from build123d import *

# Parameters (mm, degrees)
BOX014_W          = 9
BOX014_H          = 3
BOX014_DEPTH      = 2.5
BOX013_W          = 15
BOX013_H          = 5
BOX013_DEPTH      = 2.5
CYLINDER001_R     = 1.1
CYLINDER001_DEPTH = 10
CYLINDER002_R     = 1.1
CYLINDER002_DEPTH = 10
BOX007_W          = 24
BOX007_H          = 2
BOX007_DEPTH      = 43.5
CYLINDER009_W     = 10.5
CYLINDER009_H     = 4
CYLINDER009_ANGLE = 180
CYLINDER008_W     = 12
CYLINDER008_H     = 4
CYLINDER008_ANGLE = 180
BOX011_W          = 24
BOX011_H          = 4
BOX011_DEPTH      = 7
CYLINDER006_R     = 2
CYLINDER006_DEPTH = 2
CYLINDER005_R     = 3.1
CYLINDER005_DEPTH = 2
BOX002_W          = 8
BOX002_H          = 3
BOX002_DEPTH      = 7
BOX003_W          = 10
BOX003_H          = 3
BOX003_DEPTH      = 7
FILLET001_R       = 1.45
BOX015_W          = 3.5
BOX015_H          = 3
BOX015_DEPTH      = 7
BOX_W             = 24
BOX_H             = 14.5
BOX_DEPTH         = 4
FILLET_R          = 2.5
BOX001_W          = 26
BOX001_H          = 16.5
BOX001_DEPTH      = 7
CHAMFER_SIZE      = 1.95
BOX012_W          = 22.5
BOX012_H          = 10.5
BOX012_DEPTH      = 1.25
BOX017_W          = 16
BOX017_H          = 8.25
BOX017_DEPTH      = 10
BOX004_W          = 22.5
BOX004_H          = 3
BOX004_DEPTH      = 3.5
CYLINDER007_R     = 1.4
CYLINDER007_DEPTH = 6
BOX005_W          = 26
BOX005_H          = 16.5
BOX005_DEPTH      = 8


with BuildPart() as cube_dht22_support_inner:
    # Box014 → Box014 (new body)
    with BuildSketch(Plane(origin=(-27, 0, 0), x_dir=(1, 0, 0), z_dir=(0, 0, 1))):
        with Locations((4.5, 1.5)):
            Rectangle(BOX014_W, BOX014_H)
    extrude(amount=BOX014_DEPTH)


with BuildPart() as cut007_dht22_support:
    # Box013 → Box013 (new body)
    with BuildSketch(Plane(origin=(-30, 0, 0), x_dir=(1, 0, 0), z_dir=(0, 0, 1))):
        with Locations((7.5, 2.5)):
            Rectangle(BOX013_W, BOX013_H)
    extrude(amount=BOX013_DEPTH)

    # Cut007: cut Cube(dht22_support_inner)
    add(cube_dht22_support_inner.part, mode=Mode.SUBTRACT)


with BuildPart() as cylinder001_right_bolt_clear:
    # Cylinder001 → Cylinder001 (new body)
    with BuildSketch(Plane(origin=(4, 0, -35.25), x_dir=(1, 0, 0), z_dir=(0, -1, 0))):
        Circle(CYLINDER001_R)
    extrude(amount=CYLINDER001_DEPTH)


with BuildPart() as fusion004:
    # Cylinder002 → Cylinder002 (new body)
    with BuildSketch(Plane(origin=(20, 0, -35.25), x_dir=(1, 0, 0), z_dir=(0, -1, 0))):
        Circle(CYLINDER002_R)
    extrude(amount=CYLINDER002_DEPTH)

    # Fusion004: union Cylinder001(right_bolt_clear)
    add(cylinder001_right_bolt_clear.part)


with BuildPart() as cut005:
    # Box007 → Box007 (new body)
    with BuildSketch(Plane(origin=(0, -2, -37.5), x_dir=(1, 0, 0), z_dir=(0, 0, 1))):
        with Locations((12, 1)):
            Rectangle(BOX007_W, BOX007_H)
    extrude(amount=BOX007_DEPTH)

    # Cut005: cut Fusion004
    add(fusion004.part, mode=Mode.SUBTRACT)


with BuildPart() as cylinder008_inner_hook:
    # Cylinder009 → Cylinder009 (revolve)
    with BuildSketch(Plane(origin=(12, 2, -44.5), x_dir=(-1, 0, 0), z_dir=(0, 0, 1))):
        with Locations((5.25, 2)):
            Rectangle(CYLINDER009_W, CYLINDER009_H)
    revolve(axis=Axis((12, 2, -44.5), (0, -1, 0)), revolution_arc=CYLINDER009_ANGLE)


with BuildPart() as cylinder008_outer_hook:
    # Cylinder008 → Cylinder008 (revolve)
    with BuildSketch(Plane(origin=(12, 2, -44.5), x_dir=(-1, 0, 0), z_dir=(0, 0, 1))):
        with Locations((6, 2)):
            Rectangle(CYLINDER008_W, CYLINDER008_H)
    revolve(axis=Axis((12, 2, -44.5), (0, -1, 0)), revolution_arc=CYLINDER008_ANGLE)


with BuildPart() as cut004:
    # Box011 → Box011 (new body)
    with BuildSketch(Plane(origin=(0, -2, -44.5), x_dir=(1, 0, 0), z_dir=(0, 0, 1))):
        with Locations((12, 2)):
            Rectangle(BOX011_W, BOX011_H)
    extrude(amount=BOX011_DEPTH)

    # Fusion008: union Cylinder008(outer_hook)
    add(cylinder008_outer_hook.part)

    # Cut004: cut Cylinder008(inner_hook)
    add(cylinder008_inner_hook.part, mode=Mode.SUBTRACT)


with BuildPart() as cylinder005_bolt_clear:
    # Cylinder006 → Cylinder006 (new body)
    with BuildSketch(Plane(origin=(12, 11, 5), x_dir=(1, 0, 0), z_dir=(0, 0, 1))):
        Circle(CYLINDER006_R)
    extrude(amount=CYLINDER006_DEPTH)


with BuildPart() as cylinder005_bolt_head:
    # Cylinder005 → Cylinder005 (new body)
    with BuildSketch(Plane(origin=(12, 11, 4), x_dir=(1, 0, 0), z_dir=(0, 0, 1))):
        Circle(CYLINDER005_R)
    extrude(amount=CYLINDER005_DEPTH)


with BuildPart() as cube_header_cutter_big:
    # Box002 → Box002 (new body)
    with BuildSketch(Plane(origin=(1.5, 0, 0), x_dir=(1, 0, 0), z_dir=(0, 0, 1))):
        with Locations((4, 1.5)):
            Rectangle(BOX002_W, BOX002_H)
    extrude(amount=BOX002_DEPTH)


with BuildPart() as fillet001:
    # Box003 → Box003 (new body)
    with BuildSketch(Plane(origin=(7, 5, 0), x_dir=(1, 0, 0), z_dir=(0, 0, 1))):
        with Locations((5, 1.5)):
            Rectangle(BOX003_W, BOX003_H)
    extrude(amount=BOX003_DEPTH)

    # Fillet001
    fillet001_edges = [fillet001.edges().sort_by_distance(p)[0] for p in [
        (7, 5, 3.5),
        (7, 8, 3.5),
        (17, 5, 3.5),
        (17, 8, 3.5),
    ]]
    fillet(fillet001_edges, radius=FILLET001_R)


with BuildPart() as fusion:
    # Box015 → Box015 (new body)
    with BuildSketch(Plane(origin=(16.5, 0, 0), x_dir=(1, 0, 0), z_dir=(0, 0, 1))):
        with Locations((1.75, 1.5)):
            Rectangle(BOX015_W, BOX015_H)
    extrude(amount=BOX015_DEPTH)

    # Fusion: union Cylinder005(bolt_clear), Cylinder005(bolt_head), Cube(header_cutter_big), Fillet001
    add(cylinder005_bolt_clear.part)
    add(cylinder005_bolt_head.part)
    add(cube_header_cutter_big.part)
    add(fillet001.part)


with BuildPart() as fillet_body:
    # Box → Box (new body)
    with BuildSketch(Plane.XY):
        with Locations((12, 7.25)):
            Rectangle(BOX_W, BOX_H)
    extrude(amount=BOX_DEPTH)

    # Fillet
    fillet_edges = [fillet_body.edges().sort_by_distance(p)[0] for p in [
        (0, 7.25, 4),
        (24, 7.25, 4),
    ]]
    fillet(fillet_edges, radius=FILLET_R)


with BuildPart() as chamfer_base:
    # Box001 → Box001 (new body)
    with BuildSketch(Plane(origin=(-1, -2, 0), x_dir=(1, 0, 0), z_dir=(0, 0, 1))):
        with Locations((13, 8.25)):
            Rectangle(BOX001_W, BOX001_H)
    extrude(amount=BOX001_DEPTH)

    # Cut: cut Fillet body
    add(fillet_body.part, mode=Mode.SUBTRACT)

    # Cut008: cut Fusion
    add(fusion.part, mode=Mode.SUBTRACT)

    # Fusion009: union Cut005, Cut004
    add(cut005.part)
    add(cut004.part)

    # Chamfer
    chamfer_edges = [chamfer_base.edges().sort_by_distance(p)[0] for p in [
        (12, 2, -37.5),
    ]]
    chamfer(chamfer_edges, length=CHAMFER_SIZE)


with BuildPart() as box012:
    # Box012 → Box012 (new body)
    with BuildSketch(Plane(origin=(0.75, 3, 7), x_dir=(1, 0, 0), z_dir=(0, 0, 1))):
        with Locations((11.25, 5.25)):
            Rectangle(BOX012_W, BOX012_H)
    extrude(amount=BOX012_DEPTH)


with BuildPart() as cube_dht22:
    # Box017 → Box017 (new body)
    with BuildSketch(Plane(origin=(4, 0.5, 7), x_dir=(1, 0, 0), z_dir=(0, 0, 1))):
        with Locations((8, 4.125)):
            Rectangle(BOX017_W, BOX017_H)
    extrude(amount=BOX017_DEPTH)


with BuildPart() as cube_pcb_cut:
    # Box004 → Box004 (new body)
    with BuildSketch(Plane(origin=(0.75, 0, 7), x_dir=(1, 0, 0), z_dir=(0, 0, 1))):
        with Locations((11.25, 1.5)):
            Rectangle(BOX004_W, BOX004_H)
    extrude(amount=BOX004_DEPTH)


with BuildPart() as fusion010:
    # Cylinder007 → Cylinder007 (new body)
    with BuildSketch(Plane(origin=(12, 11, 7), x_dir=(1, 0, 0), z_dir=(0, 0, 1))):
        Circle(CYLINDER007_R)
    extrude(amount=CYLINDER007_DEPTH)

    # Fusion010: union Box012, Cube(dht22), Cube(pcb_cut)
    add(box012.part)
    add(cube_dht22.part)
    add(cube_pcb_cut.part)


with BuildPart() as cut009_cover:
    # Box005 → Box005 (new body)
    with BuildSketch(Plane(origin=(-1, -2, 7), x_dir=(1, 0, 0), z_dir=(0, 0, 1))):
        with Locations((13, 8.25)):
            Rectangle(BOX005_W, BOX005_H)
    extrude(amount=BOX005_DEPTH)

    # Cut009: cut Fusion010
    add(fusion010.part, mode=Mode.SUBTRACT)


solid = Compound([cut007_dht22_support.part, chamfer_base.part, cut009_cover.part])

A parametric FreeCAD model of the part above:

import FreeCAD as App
import Part
import Sketcher
from FreeCAD import Vector


def edges_at(feature, points):
    """Names of the edges that pass closest to the given points."""
    edges = feature.Shape.Edges
    near = lambda p: min(range(len(edges)), key=lambda i: edges[i].distToShape(Part.Vertex(*p))[0])
    return sorted({f"Edge{near(p) + 1}" for p in points})


def add_polygon(sketch, points):
    """Adds a closed chain of lines whose ends are joined by coincident constraints."""
    first, n = sketch.GeometryCount, len(points)
    for a, b in zip(points, points[1:] + points[:1]):
        sketch.addGeometry(Part.LineSegment(App.Vector(*a, 0), App.Vector(*b, 0)), False)
    for i in range(n):
        sketch.addConstraint(Sketcher.Constraint("Coincident", first + i, 2, first + (i + 1) % n, 1))

doc = App.newDocument("Part")
body = doc.addObject("PartDesign::Body", "Body")

# Sketch on XY plane
sketch1 = doc.addObject("Sketcher::SketchObject", "Sketch")
body.addObject(sketch1)
sketch1.AttachmentSupport = (doc.XY_Plane, [""])
sketch1.MapMode = "FlatFace"
add_polygon(sketch1, [(-27, 3), (-27, 0), (-18, 0), (-18, 3)])  # lines 0-3
sketch1.addConstraint([
    Sketcher.Constraint("Vertical", 0),
    Sketcher.Constraint("Horizontal", 1),
    Sketcher.Constraint("Vertical", 2),
    Sketcher.Constraint("Horizontal", 3),
    Sketcher.Constraint("PointOnObject", 0, 2, -1),
    Sketcher.Constraint("DistanceX", 1, 1, 1, 2, 9.0),
    Sketcher.Constraint("DistanceY", 0, 2, 0, 1, 3.0),
    Sketcher.Constraint("DistanceX", 0, 2, -1, 1, 27.0),
])
pad1 = doc.addObject("PartDesign::Pad", "Pad")
body.addObject(pad1)
pad1.Profile = sketch1
pad1.Length = 2.5
body2 = doc.addObject("PartDesign::Body", "Body001")

# Sketch on XY plane
sketch2 = doc.addObject("Sketcher::SketchObject", "Sketch001")
body2.addObject(sketch2)
sketch2.AttachmentSupport = (doc.getObject("XY_Plane001"), [""])
sketch2.MapMode = "FlatFace"
add_polygon(sketch2, [(-30, 5), (-30, 0), (-15, 0), (-15, 5)])  # lines 0-3
sketch2.addConstraint([
    Sketcher.Constraint("Vertical", 0),
    Sketcher.Constraint("Horizontal", 1),
    Sketcher.Constraint("Vertical", 2),
    Sketcher.Constraint("Horizontal", 3),
    Sketcher.Constraint("PointOnObject", 0, 2, -1),
    Sketcher.Constraint("DistanceX", 1, 1, 1, 2, 15.0),
    Sketcher.Constraint("DistanceY", 0, 2, 0, 1, 5.0),
    Sketcher.Constraint("DistanceX", 0, 2, -1, 1, 30.0),
])
pad2 = doc.addObject("PartDesign::Pad", "Pad001")
body2.addObject(pad2)
pad2.Profile = sketch2
pad2.Length = 2.5
doc.recompute()

boolean = doc.addObject("PartDesign::Boolean", "Boolean")
body2.addObject(boolean)
boolean.Type = "Cut"
boolean.addObjects([body])
body3 = doc.addObject("PartDesign::Body", "Body002")

# Sketch on XZ plane
sketch3 = doc.addObject("Sketcher::SketchObject", "Sketch002")
body3.addObject(sketch3)
sketch3.AttachmentSupport = (doc.getObject("XZ_Plane002"), [""])
sketch3.MapMode = "FlatFace"
sketch3.addGeometry(Part.Circle(Vector(4, -35.2, 0), Vector(0, 0, 1), 1.1), False)
sketch3.addConstraint([
    Sketcher.Constraint("Diameter", 0, 2.2),
    Sketcher.Constraint("DistanceX", -1, 1, 0, 3, 4.0),
    Sketcher.Constraint("DistanceY", 0, 3, -1, 1, 35.25),
])
pad3 = doc.addObject("PartDesign::Pad", "Pad002")
body3.addObject(pad3)
pad3.Profile = sketch3
pad3.Length = 10
body4 = doc.addObject("PartDesign::Body", "Body003")
body4.AllowCompound = True

# Sketch on XZ plane
sketch4 = doc.addObject("Sketcher::SketchObject", "Sketch003")
body4.addObject(sketch4)
sketch4.AttachmentSupport = (doc.getObject("XZ_Plane003"), [""])
sketch4.MapMode = "FlatFace"
sketch4.addGeometry(Part.Circle(Vector(20, -35.2, 0), Vector(0, 0, 1), 1.1), False)
sketch4.addConstraint([
    Sketcher.Constraint("Diameter", 0, 2.2),
    Sketcher.Constraint("DistanceX", -1, 1, 0, 3, 20.0),
    Sketcher.Constraint("DistanceY", 0, 3, -1, 1, 35.25),
])
pad4 = doc.addObject("PartDesign::Pad", "Pad003")
body4.addObject(pad4)
pad4.Profile = sketch4
pad4.Length = 10
doc.recompute()

boolean2 = doc.addObject("PartDesign::Boolean", "Boolean001")
body4.addObject(boolean2)
boolean2.Type = "Fuse"
boolean2.addObjects([body3])
body5 = doc.addObject("PartDesign::Body", "Body004")

# Sketch on XY plane
sketch5 = doc.addObject("Sketcher::SketchObject", "Sketch004")
body5.addObject(sketch5)
sketch5.AttachmentSupport = (doc.getObject("XY_Plane004"), [""])
sketch5.MapMode = "FlatFace"
sketch5.AttachmentOffset = App.Placement(Vector(0, 0, -37.5), App.Rotation())
add_polygon(sketch5, [(0, 0), (0, -2), (24, -2), (24, 0)])  # lines 0-3
sketch5.addConstraint([
    Sketcher.Constraint("Vertical", 0),
    Sketcher.Constraint("Horizontal", 1),
    Sketcher.Constraint("Vertical", 2),
    Sketcher.Constraint("Horizontal", 3),
    Sketcher.Constraint("Coincident", 3, 2, -1, 1),
    Sketcher.Constraint("DistanceX", 1, 1, 1, 2, 24.0),
    Sketcher.Constraint("DistanceY", 0, 2, 0, 1, 2.0),
])
pad5 = doc.addObject("PartDesign::Pad", "Pad004")
body5.addObject(pad5)
pad5.Profile = sketch5
pad5.Length = 43.5
doc.recompute()

boolean3 = doc.addObject("PartDesign::Boolean", "Boolean002")
body5.addObject(boolean3)
boolean3.Type = "Cut"
boolean3.addObjects([body4])
body6 = doc.addObject("PartDesign::Body", "Body005")

# Sketch on XY plane
sketch6 = doc.addObject("Sketcher::SketchObject", "Sketch005")
body6.addObject(sketch6)
sketch6.AttachmentSupport = (doc.getObject("XY_Plane005"), [""])
sketch6.MapMode = "FlatFace"
sketch6.AttachmentOffset = App.Placement(Vector(0, 0, -44.5), App.Rotation())
add_polygon(sketch6, [(12, -2), (12, 2), (1.5, 2), (1.5, -2)])  # lines 0-3
sketch6.addGeometry(Part.LineSegment(Vector(12, 2, 0), Vector(12, -2, 0)), True)  # axis
sketch6.addConstraint([
    Sketcher.Constraint("Vertical", 0),
    Sketcher.Constraint("Horizontal", 1),
    Sketcher.Constraint("Vertical", 2),
    Sketcher.Constraint("Horizontal", 3),
    Sketcher.Constraint("Vertical", 4),
    Sketcher.Constraint("Coincident", 4, 1, 0, 2),
    Sketcher.Constraint("Horizontal", 2, 2, 4, 2),
    Sketcher.Constraint("DistanceY", 0, 1, 0, 2, 4.0),
    Sketcher.Constraint("DistanceX", 1, 2, 1, 1, 10.5),
    Sketcher.Constraint("DistanceX", -1, 1, 0, 2, 12.0),
    Sketcher.Constraint("DistanceY", -1, 1, 0, 2, 2.0),
])
revolution = doc.addObject("PartDesign::Revolution", "Revolution")
body6.addObject(revolution)
revolution.Profile = sketch6
revolution.ReferenceAxis = (sketch6, ["Axis0"])
revolution.Angle = 180
body7 = doc.addObject("PartDesign::Body", "Body006")

# Sketch on XY plane
sketch7 = doc.addObject("Sketcher::SketchObject", "Sketch006")
body7.addObject(sketch7)
sketch7.AttachmentSupport = (doc.getObject("XY_Plane006"), [""])
sketch7.MapMode = "FlatFace"
sketch7.AttachmentOffset = App.Placement(Vector(0, 0, -44.5), App.Rotation())
add_polygon(sketch7, [(12, -2), (12, 2), (0, 2), (0, -2)])  # lines 0-3
sketch7.addGeometry(Part.LineSegment(Vector(12, 2, 0), Vector(12, -2, 0)), True)  # axis
sketch7.addConstraint([
    Sketcher.Constraint("Vertical", 0),
    Sketcher.Constraint("Horizontal", 1),
    Sketcher.Constraint("Vertical", 2),
    Sketcher.Constraint("Horizontal", 3),
    Sketcher.Constraint("Vertical", 4),
    Sketcher.Constraint("Coincident", 4, 1, 0, 2),
    Sketcher.Constraint("Symmetric", 1, 2, 2, 2, -1, 1),
    Sketcher.Constraint("Horizontal", 2, 2, 4, 2),
    Sketcher.Constraint("DistanceX", 1, 2, 1, 1, 12.0),
    Sketcher.Constraint("DistanceY", 0, 1, 0, 2, 4.0),
])
revolution2 = doc.addObject("PartDesign::Revolution", "Revolution001")
body7.addObject(revolution2)
revolution2.Profile = sketch7
revolution2.ReferenceAxis = (sketch7, ["Axis0"])
revolution2.Angle = 180
body8 = doc.addObject("PartDesign::Body", "Body007")

# Sketch on XY plane
sketch8 = doc.addObject("Sketcher::SketchObject", "Sketch007")
body8.addObject(sketch8)
sketch8.AttachmentSupport = (doc.getObject("XY_Plane007"), [""])
sketch8.MapMode = "FlatFace"
sketch8.AttachmentOffset = App.Placement(Vector(0, 0, -44.5), App.Rotation())
add_polygon(sketch8, [(0, 2), (0, -2), (24, -2), (24, 2)])  # lines 0-3
sketch8.addConstraint([
    Sketcher.Constraint("Vertical", 0),
    Sketcher.Constraint("Horizontal", 1),
    Sketcher.Constraint("Vertical", 2),
    Sketcher.Constraint("Horizontal", 3),
    Sketcher.Constraint("Symmetric", 0, 2, 3, 2, -1, 1),
    Sketcher.Constraint("DistanceX", 1, 1, 1, 2, 24.0),
    Sketcher.Constraint("DistanceY", 0, 2, 0, 1, 4.0),
])
pad6 = doc.addObject("PartDesign::Pad", "Pad005")
body8.addObject(pad6)
pad6.Profile = sketch8
pad6.Length = 7
doc.recompute()

boolean4 = doc.addObject("PartDesign::Boolean", "Boolean003")
body8.addObject(boolean4)
boolean4.Type = "Fuse"
boolean4.addObjects([body7])
doc.recompute()

boolean5 = doc.addObject("PartDesign::Boolean", "Boolean004")
body8.addObject(boolean5)
boolean5.Type = "Cut"
boolean5.addObjects([body6])
body9 = doc.addObject("PartDesign::Body", "Body008")

# Sketch on XY plane
sketch9 = doc.addObject("Sketcher::SketchObject", "Sketch008")
body9.addObject(sketch9)
sketch9.AttachmentSupport = (doc.getObject("XY_Plane008"), [""])
sketch9.MapMode = "FlatFace"
sketch9.AttachmentOffset = App.Placement(Vector(0, 0, 5), App.Rotation())
sketch9.addGeometry(Part.Circle(Vector(12, 11, 0), Vector(0, 0, 1), 2), False)
sketch9.addConstraint([
    Sketcher.Constraint("Diameter", 0, 4.0),
    Sketcher.Constraint("DistanceX", -1, 1, 0, 3, 12.0),
    Sketcher.Constraint("DistanceY", -1, 1, 0, 3, 11.0),
])
pad7 = doc.addObject("PartDesign::Pad", "Pad006")
body9.addObject(pad7)
pad7.Profile = sketch9
pad7.Length = 2
body10 = doc.addObject("PartDesign::Body", "Body009")

# Sketch on XY plane
sketch10 = doc.addObject("Sketcher::SketchObject", "Sketch009")
body10.addObject(sketch10)
sketch10.AttachmentSupport = (doc.getObject("XY_Plane009"), [""])
sketch10.MapMode = "FlatFace"
sketch10.AttachmentOffset = App.Placement(Vector(0, 0, 4), App.Rotation())
sketch10.addGeometry(Part.Circle(Vector(12, 11, 0), Vector(0, 0, 1), 3.1), False)
sketch10.addConstraint([
    Sketcher.Constraint("Diameter", 0, 6.2),
    Sketcher.Constraint("DistanceX", -1, 1, 0, 3, 12.0),
    Sketcher.Constraint("DistanceY", -1, 1, 0, 3, 11.0),
])
pad8 = doc.addObject("PartDesign::Pad", "Pad007")
body10.addObject(pad8)
pad8.Profile = sketch10
pad8.Length = 2
body11 = doc.addObject("PartDesign::Body", "Body010")

# Sketch on XY plane
sketch11 = doc.addObject("Sketcher::SketchObject", "Sketch010")
body11.addObject(sketch11)
sketch11.AttachmentSupport = (doc.getObject("XY_Plane010"), [""])
sketch11.MapMode = "FlatFace"
add_polygon(sketch11, [(1.5, 3), (1.5, 0), (9.5, 0), (9.5, 3)])  # lines 0-3
sketch11.addConstraint([
    Sketcher.Constraint("Vertical", 0),
    Sketcher.Constraint("Horizontal", 1),
    Sketcher.Constraint("Vertical", 2),
    Sketcher.Constraint("Horizontal", 3),
    Sketcher.Constraint("PointOnObject", 0, 2, -1),
    Sketcher.Constraint("DistanceX", 1, 1, 1, 2, 8.0),
    Sketcher.Constraint("DistanceY", 0, 2, 0, 1, 3.0),
    Sketcher.Constraint("DistanceX", -1, 1, 0, 2, 1.5),
])
pad9 = doc.addObject("PartDesign::Pad", "Pad008")
body11.addObject(pad9)
pad9.Profile = sketch11
pad9.Length = 7
body12 = doc.addObject("PartDesign::Body", "Body011")

# Sketch on XY plane
sketch12 = doc.addObject("Sketcher::SketchObject", "Sketch011")
body12.addObject(sketch12)
sketch12.AttachmentSupport = (doc.getObject("XY_Plane011"), [""])
sketch12.MapMode = "FlatFace"
add_polygon(sketch12, [(7, 8), (7, 5), (17, 5), (17, 8)])  # lines 0-3
sketch12.addConstraint([
    Sketcher.Constraint("Vertical", 0),
    Sketcher.Constraint("Horizontal", 1),
    Sketcher.Constraint("Vertical", 2),
    Sketcher.Constraint("Horizontal", 3),
    Sketcher.Constraint("DistanceX", 1, 1, 1, 2, 10.0),
    Sketcher.Constraint("DistanceY", 0, 2, 0, 1, 3.0),
    Sketcher.Constraint("DistanceX", -1, 1, 0, 2, 7.0),
    Sketcher.Constraint("DistanceY", -1, 1, 0, 2, 5.0),
])
pad10 = doc.addObject("PartDesign::Pad", "Pad009")
body12.addObject(pad10)
pad10.Profile = sketch12
pad10.Length = 7
doc.recompute()

fillet = doc.addObject("PartDesign::Fillet", "Fillet")
body12.addObject(fillet)
fillet.Base = (pad10, edges_at(pad10, [
    (7, 5, 3.5),
    (7, 8, 3.5),
    (17, 5, 3.5),
    (17, 8, 3.5),
]))
fillet.Radius = 1.45
body13 = doc.addObject("PartDesign::Body", "Body012")
body13.AllowCompound = True

# Sketch on XY plane
sketch13 = doc.addObject("Sketcher::SketchObject", "Sketch012")
body13.addObject(sketch13)
sketch13.AttachmentSupport = (doc.getObject("XY_Plane012"), [""])
sketch13.MapMode = "FlatFace"
add_polygon(sketch13, [(16.5, 3), (16.5, 0), (20, 0), (20, 3)])  # lines 0-3
sketch13.addConstraint([
    Sketcher.Constraint("Vertical", 0),
    Sketcher.Constraint("Horizontal", 1),
    Sketcher.Constraint("Vertical", 2),
    Sketcher.Constraint("Horizontal", 3),
    Sketcher.Constraint("PointOnObject", 0, 2, -1),
    Sketcher.Constraint("DistanceY", 0, 2, 0, 1, 3.0),
    Sketcher.Constraint("DistanceX", 1, 1, 1, 2, 3.5),
    Sketcher.Constraint("DistanceX", -1, 1, 1, 2, 20.0),
])
pad11 = doc.addObject("PartDesign::Pad", "Pad010")
body13.addObject(pad11)
pad11.Profile = sketch13
pad11.Length = 7
doc.recompute()

boolean6 = doc.addObject("PartDesign::Boolean", "Boolean005")
body13.addObject(boolean6)
boolean6.Type = "Fuse"
boolean6.addObjects([body9])
doc.recompute()

boolean7 = doc.addObject("PartDesign::Boolean", "Boolean006")
body13.addObject(boolean7)
boolean7.Type = "Fuse"
boolean7.addObjects([body10])
doc.recompute()

boolean8 = doc.addObject("PartDesign::Boolean", "Boolean007")
body13.addObject(boolean8)
boolean8.Type = "Fuse"
boolean8.addObjects([body11])
doc.recompute()

boolean9 = doc.addObject("PartDesign::Boolean", "Boolean008")
body13.addObject(boolean9)
boolean9.Type = "Fuse"
boolean9.addObjects([body12])
body14 = doc.addObject("PartDesign::Body", "Body013")

# Sketch on XY plane
sketch14 = doc.addObject("Sketcher::SketchObject", "Sketch013")
body14.addObject(sketch14)
sketch14.AttachmentSupport = (doc.getObject("XY_Plane013"), [""])
sketch14.MapMode = "FlatFace"
add_polygon(sketch14, [(0, 14), (0, 0), (24, 0), (24, 14)])  # lines 0-3
sketch14.addConstraint([
    Sketcher.Constraint("Vertical", 0),
    Sketcher.Constraint("Horizontal", 1),
    Sketcher.Constraint("Vertical", 2),
    Sketcher.Constraint("Horizontal", 3),
    Sketcher.Constraint("Coincident", 0, 2, -1, 1),
    Sketcher.Constraint("DistanceX", 1, 1, 1, 2, 24.0),
    Sketcher.Constraint("DistanceY", 0, 2, 0, 1, 14.5),
])
pad12 = doc.addObject("PartDesign::Pad", "Pad011")
body14.addObject(pad12)
pad12.Profile = sketch14
pad12.Length = 4
doc.recompute()

fillet2 = doc.addObject("PartDesign::Fillet", "Fillet001")
body14.addObject(fillet2)
fillet2.Base = (pad12, edges_at(pad12, [(0, 7.25, 4), (24, 7.25, 4)]))
fillet2.Radius = 2.5
body15 = doc.addObject("PartDesign::Body", "Body014")

# Sketch on XY plane
sketch15 = doc.addObject("Sketcher::SketchObject", "Sketch014")
body15.addObject(sketch15)
sketch15.AttachmentSupport = (doc.getObject("XY_Plane014"), [""])
sketch15.MapMode = "FlatFace"
add_polygon(sketch15, [(-1, 14), (-1, -2), (25, -2), (25, 14)])  # lines 0-3
sketch15.addConstraint([
    Sketcher.Constraint("Vertical", 0),
    Sketcher.Constraint("Horizontal", 1),
    Sketcher.Constraint("Vertical", 2),
    Sketcher.Constraint("Horizontal", 3),
    Sketcher.Constraint("DistanceX", 1, 1, 1, 2, 26.0),
    Sketcher.Constraint("DistanceY", 0, 2, 0, 1, 16.5),
    Sketcher.Constraint("DistanceX", 0, 2, -1, 1, 1.0),
    Sketcher.Constraint("DistanceY", 0, 2, -1, 1, 2.0),
])
pad13 = doc.addObject("PartDesign::Pad", "Pad012")
body15.addObject(pad13)
pad13.Profile = sketch15
pad13.Length = 7
doc.recompute()

boolean10 = doc.addObject("PartDesign::Boolean", "Boolean009")
body15.addObject(boolean10)
boolean10.Type = "Cut"
boolean10.addObjects([body14])
doc.recompute()

boolean11 = doc.addObject("PartDesign::Boolean", "Boolean010")
body15.addObject(boolean11)
boolean11.Type = "Cut"
boolean11.addObjects([body13])
doc.recompute()

boolean12 = doc.addObject("PartDesign::Boolean", "Boolean011")
body15.addObject(boolean12)
boolean12.Type = "Fuse"
boolean12.addObjects([body5])
doc.recompute()

boolean13 = doc.addObject("PartDesign::Boolean", "Boolean012")
body15.addObject(boolean13)
boolean13.Type = "Fuse"
boolean13.addObjects([body8])
doc.recompute()

chamfer = doc.addObject("PartDesign::Chamfer", "Chamfer")
body15.addObject(chamfer)
chamfer.Base = (boolean13, edges_at(boolean13, [(12, 2, -37.5)]))
chamfer.Size = 1.95
body16 = doc.addObject("PartDesign::Body", "Body015")

# Sketch on XY plane
sketch16 = doc.addObject("Sketcher::SketchObject", "Sketch015")
body16.addObject(sketch16)
sketch16.AttachmentSupport = (doc.getObject("XY_Plane015"), [""])
sketch16.MapMode = "FlatFace"
sketch16.AttachmentOffset = App.Placement(Vector(0, 0, 7), App.Rotation())
add_polygon(sketch16, [(1, 14), (1, 3), (23, 3), (23, 14)])  # lines 0-3
sketch16.addConstraint([
    Sketcher.Constraint("Vertical", 0),
    Sketcher.Constraint("Horizontal", 1),
    Sketcher.Constraint("Vertical", 2),
    Sketcher.Constraint("Horizontal", 3),
    Sketcher.Constraint("DistanceX", 1, 1, 1, 2, 22.5),
    Sketcher.Constraint("DistanceY", 0, 2, 0, 1, 10.5),
    Sketcher.Constraint("DistanceY", -1, 1, 0, 2, 3.0),
    Sketcher.Constraint("DistanceX", -1, 1, 0, 2, 0.75),
])
pad14 = doc.addObject("PartDesign::Pad", "Pad013")
body16.addObject(pad14)
pad14.Profile = sketch16
pad14.Length = 1.25
body17 = doc.addObject("PartDesign::Body", "Body016")

# Sketch on XY plane
sketch17 = doc.addObject("Sketcher::SketchObject", "Sketch016")
body17.addObject(sketch17)
sketch17.AttachmentSupport = (doc.getObject("XY_Plane016"), [""])
sketch17.MapMode = "FlatFace"
sketch17.AttachmentOffset = App.Placement(Vector(0, 0, 7), App.Rotation())
add_polygon(sketch17, [(4, 9), (4, 0), (20, 0), (20, 9)])  # lines 0-3
sketch17.addConstraint([
    Sketcher.Constraint("Vertical", 0),
    Sketcher.Constraint("Horizontal", 1),
    Sketcher.Constraint("Vertical", 2),
    Sketcher.Constraint("Horizontal", 3),
    Sketcher.Constraint("DistanceX", 1, 1, 1, 2, 16.0),
    Sketcher.Constraint("DistanceX", -1, 1, 0, 2, 4.0),
    Sketcher.Constraint("DistanceY", 0, 2, 0, 1, 8.25),
    Sketcher.Constraint("DistanceY", -1, 1, 0, 2, 0.5),
])
pad15 = doc.addObject("PartDesign::Pad", "Pad014")
body17.addObject(pad15)
pad15.Profile = sketch17
pad15.Length = 10
body18 = doc.addObject("PartDesign::Body", "Body017")

# Sketch on XY plane
sketch18 = doc.addObject("Sketcher::SketchObject", "Sketch017")
body18.addObject(sketch18)
sketch18.AttachmentSupport = (doc.getObject("XY_Plane017"), [""])
sketch18.MapMode = "FlatFace"
sketch18.AttachmentOffset = App.Placement(Vector(0, 0, 7), App.Rotation())
add_polygon(sketch18, [(0.8, 3), (0.8, 0), (23.2, 0), (23.2, 3)])  # lines 0-3
sketch18.addConstraint([
    Sketcher.Constraint("Vertical", 0),
    Sketcher.Constraint("Horizontal", 1),
    Sketcher.Constraint("Vertical", 2),
    Sketcher.Constraint("Horizontal", 3),
    Sketcher.Constraint("PointOnObject", 0, 2, -1),
    Sketcher.Constraint("DistanceY", 0, 2, 0, 1, 3.0),
    Sketcher.Constraint("DistanceX", 1, 1, 1, 2, 22.5),
    Sketcher.Constraint("DistanceX", -1, 1, 0, 2, 0.75),
])
pad16 = doc.addObject("PartDesign::Pad", "Pad015")
body18.addObject(pad16)
pad16.Profile = sketch18
pad16.Length = 3.5
body19 = doc.addObject("PartDesign::Body", "Body018")

# Sketch on XY plane
sketch19 = doc.addObject("Sketcher::SketchObject", "Sketch018")
body19.addObject(sketch19)
sketch19.AttachmentSupport = (doc.getObject("XY_Plane018"), [""])
sketch19.MapMode = "FlatFace"
sketch19.AttachmentOffset = App.Placement(Vector(0, 0, 7), App.Rotation())
sketch19.addGeometry(Part.Circle(Vector(12, 11, 0), Vector(0, 0, 1), 1.4), False)
sketch19.addConstraint([
    Sketcher.Constraint("Diameter", 0, 2.8),
    Sketcher.Constraint("DistanceX", -1, 1, 0, 3, 12.0),
    Sketcher.Constraint("DistanceY", -1, 1, 0, 3, 11.0),
])
pad17 = doc.addObject("PartDesign::Pad", "Pad016")
body19.addObject(pad17)
pad17.Profile = sketch19
pad17.Length = 6
doc.recompute()

boolean14 = doc.addObject("PartDesign::Boolean", "Boolean013")
body19.addObject(boolean14)
boolean14.Type = "Fuse"
boolean14.addObjects([body16])
doc.recompute()

boolean15 = doc.addObject("PartDesign::Boolean", "Boolean014")
body19.addObject(boolean15)
boolean15.Type = "Fuse"
boolean15.addObjects([body17])
doc.recompute()

boolean16 = doc.addObject("PartDesign::Boolean", "Boolean015")
body19.addObject(boolean16)
boolean16.Type = "Fuse"
boolean16.addObjects([body18])
body20 = doc.addObject("PartDesign::Body", "Body019")

# Sketch on XY plane
sketch20 = doc.addObject("Sketcher::SketchObject", "Sketch019")
body20.addObject(sketch20)
sketch20.AttachmentSupport = (doc.getObject("XY_Plane019"), [""])
sketch20.MapMode = "FlatFace"
sketch20.AttachmentOffset = App.Placement(Vector(0, 0, 7), App.Rotation())
add_polygon(sketch20, [(-1, 14), (-1, -2), (25, -2), (25, 14)])  # lines 0-3
sketch20.addConstraint([
    Sketcher.Constraint("Vertical", 0),
    Sketcher.Constraint("Horizontal", 1),
    Sketcher.Constraint("Vertical", 2),
    Sketcher.Constraint("Horizontal", 3),
    Sketcher.Constraint("DistanceX", 1, 1, 1, 2, 26.0),
    Sketcher.Constraint("DistanceY", 0, 2, 0, 1, 16.5),
    Sketcher.Constraint("DistanceX", 0, 2, -1, 1, 1.0),
    Sketcher.Constraint("DistanceY", 0, 2, -1, 1, 2.0),
])
pad18 = doc.addObject("PartDesign::Pad", "Pad017")
body20.addObject(pad18)
pad18.Profile = sketch20
pad18.Length = 8
doc.recompute()

boolean17 = doc.addObject("PartDesign::Boolean", "Boolean016")
body20.addObject(boolean17)
boolean17.Type = "Cut"
boolean17.addObjects([body19])

doc.recompute()
